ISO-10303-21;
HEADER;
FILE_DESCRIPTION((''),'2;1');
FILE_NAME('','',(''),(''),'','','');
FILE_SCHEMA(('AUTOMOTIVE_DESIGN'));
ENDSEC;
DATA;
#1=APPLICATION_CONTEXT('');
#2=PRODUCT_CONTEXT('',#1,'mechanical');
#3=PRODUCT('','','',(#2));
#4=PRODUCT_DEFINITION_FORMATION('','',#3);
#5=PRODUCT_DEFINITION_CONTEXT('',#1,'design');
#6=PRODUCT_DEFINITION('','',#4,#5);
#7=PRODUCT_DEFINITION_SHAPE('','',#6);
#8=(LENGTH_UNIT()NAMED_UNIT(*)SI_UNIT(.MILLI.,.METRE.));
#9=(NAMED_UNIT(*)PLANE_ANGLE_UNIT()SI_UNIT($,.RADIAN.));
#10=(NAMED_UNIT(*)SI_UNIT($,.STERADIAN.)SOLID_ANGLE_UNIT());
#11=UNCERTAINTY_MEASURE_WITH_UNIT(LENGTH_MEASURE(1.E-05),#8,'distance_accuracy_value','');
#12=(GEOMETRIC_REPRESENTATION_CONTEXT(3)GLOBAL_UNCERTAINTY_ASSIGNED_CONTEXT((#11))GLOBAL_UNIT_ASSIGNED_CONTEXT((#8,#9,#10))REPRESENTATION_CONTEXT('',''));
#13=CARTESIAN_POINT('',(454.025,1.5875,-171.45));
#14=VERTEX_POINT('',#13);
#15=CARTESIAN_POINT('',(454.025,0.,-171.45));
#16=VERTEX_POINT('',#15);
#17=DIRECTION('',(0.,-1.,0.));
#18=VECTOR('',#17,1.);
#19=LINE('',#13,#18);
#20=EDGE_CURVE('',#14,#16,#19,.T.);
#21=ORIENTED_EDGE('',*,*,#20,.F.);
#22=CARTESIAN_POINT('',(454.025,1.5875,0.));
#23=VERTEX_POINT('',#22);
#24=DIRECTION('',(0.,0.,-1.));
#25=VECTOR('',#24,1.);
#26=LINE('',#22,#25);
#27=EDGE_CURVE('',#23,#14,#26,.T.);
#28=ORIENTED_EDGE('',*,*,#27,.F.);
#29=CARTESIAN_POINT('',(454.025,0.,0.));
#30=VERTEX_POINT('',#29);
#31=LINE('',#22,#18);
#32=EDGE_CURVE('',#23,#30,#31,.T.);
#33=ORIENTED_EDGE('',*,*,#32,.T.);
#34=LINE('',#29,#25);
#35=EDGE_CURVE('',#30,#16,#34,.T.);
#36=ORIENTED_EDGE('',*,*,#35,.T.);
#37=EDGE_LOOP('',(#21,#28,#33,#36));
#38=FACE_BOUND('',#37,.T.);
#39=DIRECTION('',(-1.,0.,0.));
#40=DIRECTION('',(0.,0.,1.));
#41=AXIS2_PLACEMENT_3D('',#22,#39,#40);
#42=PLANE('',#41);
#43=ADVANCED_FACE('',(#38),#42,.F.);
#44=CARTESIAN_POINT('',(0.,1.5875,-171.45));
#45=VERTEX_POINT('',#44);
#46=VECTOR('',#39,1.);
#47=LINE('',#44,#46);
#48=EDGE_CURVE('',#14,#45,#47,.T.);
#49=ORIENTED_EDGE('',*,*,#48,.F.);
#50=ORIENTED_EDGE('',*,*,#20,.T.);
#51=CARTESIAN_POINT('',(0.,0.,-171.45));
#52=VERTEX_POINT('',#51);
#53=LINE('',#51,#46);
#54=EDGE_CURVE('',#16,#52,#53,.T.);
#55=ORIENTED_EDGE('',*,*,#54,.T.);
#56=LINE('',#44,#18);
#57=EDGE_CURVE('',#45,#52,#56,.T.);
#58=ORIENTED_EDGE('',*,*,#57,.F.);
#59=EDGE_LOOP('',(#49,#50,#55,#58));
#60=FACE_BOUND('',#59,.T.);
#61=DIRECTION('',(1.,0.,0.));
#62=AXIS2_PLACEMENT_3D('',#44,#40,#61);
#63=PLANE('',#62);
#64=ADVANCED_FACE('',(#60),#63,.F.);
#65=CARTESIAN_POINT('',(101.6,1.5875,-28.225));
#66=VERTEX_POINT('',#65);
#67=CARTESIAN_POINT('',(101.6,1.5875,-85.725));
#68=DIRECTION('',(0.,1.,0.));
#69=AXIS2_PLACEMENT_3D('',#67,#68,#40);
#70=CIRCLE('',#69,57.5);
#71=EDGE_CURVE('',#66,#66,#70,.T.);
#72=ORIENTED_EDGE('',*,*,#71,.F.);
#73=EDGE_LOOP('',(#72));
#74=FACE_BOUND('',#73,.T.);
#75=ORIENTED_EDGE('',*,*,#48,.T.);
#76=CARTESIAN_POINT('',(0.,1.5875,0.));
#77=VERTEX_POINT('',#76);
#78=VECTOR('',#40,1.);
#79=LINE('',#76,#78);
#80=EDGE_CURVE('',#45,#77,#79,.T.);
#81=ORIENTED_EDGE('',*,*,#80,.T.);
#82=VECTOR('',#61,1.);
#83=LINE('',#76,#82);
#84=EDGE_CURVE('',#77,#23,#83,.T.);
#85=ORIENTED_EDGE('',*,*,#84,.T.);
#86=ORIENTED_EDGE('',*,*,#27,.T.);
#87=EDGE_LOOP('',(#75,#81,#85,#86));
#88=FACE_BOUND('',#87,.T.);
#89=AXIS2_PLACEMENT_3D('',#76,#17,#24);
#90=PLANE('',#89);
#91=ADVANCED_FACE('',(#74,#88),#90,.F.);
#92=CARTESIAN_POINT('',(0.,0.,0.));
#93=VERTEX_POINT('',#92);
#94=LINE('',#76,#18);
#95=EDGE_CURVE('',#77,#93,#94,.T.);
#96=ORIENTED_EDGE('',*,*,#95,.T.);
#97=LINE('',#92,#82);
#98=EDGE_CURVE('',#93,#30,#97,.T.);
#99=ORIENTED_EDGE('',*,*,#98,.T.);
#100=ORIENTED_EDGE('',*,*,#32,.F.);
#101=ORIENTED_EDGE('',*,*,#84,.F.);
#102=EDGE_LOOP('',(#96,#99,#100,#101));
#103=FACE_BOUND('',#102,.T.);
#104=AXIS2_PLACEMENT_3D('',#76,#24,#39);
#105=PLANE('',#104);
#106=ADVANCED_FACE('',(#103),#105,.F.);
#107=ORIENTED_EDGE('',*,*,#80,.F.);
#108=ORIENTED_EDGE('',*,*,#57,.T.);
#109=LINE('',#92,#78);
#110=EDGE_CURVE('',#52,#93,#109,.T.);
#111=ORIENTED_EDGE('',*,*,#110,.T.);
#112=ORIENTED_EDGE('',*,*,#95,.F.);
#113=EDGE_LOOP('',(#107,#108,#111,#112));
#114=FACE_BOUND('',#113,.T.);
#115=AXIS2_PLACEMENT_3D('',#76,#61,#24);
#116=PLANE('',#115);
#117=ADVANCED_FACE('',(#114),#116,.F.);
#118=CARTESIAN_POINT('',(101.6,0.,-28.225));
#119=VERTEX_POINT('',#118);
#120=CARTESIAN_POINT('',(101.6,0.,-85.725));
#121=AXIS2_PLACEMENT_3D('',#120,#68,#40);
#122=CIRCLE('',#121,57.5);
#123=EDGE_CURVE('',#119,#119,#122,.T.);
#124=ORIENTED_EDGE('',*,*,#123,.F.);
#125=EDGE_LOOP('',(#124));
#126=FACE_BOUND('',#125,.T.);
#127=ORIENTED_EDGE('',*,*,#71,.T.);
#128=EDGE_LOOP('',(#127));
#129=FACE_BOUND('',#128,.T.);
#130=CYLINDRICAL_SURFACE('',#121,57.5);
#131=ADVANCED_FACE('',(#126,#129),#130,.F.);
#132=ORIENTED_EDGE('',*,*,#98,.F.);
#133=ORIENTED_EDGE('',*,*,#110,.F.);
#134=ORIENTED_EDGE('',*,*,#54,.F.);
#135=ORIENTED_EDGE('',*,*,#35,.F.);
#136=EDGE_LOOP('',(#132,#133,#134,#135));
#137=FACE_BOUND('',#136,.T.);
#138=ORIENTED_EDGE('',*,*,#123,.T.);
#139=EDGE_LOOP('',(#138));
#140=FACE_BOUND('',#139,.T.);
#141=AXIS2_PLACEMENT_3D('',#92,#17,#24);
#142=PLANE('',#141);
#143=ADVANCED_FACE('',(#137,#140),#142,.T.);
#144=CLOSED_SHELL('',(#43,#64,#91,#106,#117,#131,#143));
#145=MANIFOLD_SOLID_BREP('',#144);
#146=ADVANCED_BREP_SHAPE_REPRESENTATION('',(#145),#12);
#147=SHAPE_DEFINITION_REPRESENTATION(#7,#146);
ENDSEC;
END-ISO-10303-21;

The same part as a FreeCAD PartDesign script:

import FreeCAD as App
import Part
import Sketcher
Q = App.Units.Quantity

doc = App.newDocument("Part")
body = doc.addObject("PartDesign::Body", "Body")

# Sketch on XZ plane
sketch1 = doc.addObject("Sketcher::SketchObject", "Sketch")
body.addObject(sketch1)
sketch1.AttachmentSupport = (doc.XZ_Plane, [""])
sketch1.MapMode = "FlatFace"
sketch1.addGeometry(Part.LineSegment(App.Vector(0, -171.45, 0), App.Vector(0, 0, 0)), False)
sketch1.addGeometry(Part.LineSegment(App.Vector(0, 0, 0), App.Vector(454.025, 0, 0)), False)
sketch1.addGeometry(Part.LineSegment(App.Vector(454.025, 0, 0), App.Vector(454.025, -171.45, 0)), False)
sketch1.addGeometry(Part.LineSegment(App.Vector(454.025, -171.45, 0), App.Vector(0, -171.45, 0)), False)
sketch1.addConstraint(Sketcher.Constraint("Coincident", 0, 2, 1, 1))
sketch1.addConstraint(Sketcher.Constraint("Coincident", 1, 2, 2, 1))
sketch1.addConstraint(Sketcher.Constraint("Coincident", 2, 2, 3, 1))
sketch1.addConstraint(Sketcher.Constraint("Coincident", 3, 2, 0, 1))
sketch1.addConstraint(Sketcher.Constraint("Vertical", 0))
sketch1.addConstraint(Sketcher.Constraint("Horizontal", 1))
sketch1.addConstraint(Sketcher.Constraint("Vertical", 2))
sketch1.addConstraint(Sketcher.Constraint("Horizontal", 3))
sketch1.addConstraint(Sketcher.Constraint("Coincident", 0, 2, -1, 1))
sketch1.addConstraint(Sketcher.Constraint("DistanceY", 0, 1, 0, 2, Q("6.75 in")))
sketch1.addConstraint(Sketcher.Constraint("DistanceX", 1, 1, 1, 2, Q("17.875 in")))
pad1 = doc.addObject("PartDesign::Pad", "Pad")
body.addObject(pad1)
pad1.Profile = sketch1
pad1.Length = Q("0.0625 in")
pad1.Reversed = True

# Sketch on XZ plane
sketch2 = doc.addObject("Sketcher::SketchObject", "Sketch001")
body.addObject(sketch2)
sketch2.AttachmentSupport = (doc.XZ_Plane, [""])
sketch2.MapMode = "FlatFace"
sketch2.AttachmentOffset = App.Placement(App.Vector(0, 0, -0.0625 * 25.4), App.Rotation())
sketch2.addGeometry(Part.Circle(App.Vector(101.6, -85.725, 0), App.Vector(0, 0, 1), 57.5), False)
sketch2.addConstraint(Sketcher.Constraint("DistanceX", -1, 1, 0, 3, Q("4 in")))
sketch2.addConstraint(Sketcher.Constraint("Diameter", 0, 115.0))
sketch2.addConstraint(Sketcher.Constraint("DistanceY", 0, 3, -1, 1, Q("3.375 in")))
pocket1 = doc.addObject("PartDesign::Pocket", "Pocket")
body.addObject(pocket1)
pocket1.Profile = sketch2
pocket1.Type = "ThroughAll"
pocket1.Reversed = True

doc.recompute()
